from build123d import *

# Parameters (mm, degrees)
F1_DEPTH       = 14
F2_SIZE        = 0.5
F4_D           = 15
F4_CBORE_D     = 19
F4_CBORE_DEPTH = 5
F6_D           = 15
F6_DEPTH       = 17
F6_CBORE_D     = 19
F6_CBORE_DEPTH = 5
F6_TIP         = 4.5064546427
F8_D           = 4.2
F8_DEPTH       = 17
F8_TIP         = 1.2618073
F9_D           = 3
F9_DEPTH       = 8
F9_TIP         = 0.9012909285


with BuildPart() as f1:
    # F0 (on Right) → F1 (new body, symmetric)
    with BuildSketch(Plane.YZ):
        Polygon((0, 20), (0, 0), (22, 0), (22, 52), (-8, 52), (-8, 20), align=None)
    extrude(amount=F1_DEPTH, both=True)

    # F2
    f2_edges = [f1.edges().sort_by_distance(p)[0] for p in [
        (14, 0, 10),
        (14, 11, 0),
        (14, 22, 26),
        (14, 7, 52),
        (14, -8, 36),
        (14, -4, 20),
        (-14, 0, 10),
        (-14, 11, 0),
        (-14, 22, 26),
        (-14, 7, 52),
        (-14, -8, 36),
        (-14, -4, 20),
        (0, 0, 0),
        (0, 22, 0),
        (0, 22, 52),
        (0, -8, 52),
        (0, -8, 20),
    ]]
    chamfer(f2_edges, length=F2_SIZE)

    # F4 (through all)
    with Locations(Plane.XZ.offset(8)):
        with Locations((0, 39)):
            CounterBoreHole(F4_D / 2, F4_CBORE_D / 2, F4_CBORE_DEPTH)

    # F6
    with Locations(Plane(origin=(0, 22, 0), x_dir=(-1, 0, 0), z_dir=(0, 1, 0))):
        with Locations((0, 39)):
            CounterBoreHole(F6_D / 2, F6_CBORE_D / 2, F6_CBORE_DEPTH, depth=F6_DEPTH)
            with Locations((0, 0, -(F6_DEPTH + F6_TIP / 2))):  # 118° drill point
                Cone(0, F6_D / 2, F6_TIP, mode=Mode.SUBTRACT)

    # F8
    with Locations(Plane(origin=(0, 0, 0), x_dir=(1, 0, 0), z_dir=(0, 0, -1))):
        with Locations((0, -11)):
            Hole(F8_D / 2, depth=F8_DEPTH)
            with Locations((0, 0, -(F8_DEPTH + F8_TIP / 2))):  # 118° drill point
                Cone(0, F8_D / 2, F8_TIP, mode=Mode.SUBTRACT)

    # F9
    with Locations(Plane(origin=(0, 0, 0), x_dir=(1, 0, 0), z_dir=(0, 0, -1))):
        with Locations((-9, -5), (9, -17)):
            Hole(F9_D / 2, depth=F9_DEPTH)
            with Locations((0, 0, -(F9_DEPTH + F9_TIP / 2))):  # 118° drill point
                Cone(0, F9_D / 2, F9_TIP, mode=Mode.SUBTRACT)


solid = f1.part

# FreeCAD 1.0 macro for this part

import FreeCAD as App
import Part
import Sketcher


def edges_at(feature, points):
    """Names of the edges that pass closest to the given points."""
    edges = feature.Shape.Edges
    near = lambda p: min(range(len(edges)), key=lambda i: edges[i].distToShape(Part.Vertex(*p))[0])
    return sorted({f"Edge{near(p) + 1}" for p in points})


def add_polygon(sketch, points):
    """Adds a closed chain of lines whose ends are joined by coincident constraints."""
    first, n = sketch.GeometryCount, len(points)
    for a, b in zip(points, points[1:] + points[:1]):
        sketch.addGeometry(Part.LineSegment(App.Vector(*a, 0), App.Vector(*b, 0)), False)
    for i in range(n):
        sketch.addConstraint(Sketcher.Constraint("Coincident", first + i, 2, first + (i + 1) % n, 1))

doc = App.newDocument("Part")
body = doc.addObject("PartDesign::Body", "Body")

# Sketch on YZ plane
sketch1 = body.newObject("Sketcher::SketchObject", "Sketch")
sketch1.AttachmentSupport = (doc.getObject("YZ_Plane"), [""])
sketch1.MapMode = "FlatFace"
add_polygon(sketch1, [(0, 20), (0, 0), (22, 0), (22, 52), (-8, 52), (-8, 20)])  # lines 0-5
sketch1.addConstraint([
    Sketcher.Constraint("Vertical", 0),
    Sketcher.Constraint("Horizontal", 1),
    Sketcher.Constraint("Vertical", 2),
    Sketcher.Constraint("Horizontal", 3),
    Sketcher.Constraint("Vertical", 4),
    Sketcher.Constraint("Horizontal", 5),
    Sketcher.Constraint("Coincident", 0, 2, -1, 1),
    Sketcher.Constraint("DistanceX", 1, 1, 1, 2, 22.0),
    Sketcher.Constraint("DistanceX", 3, 2, 3, 1, 30.0),
    Sketcher.Constraint("DistanceY", 0, 2, 0, 1, 20.0),
    Sketcher.Constraint("DistanceY", 2, 1, 2, 2, 52.0),
])
pad1 = body.newObject("PartDesign::Pad", "Pad")
pad1.Profile = sketch1
pad1.Length = 28
pad1.Midplane = True
doc.recompute()

chamfer = body.newObject("PartDesign::Chamfer", "Chamfer")
chamfer.Base = (pad1, edges_at(pad1, [
    (14, 0, 10),
    (14, 11, 0),
    (14, 22, 26),
    (14, 7, 52),
    (14, -8, 36),
    (14, -4, 20),
    (-14, 0, 10),
    (-14, 11, 0),
    (-14, 22, 26),
    (-14, 7, 52),
    (-14, -8, 36),
    (-14, -4, 20),
    (0, 0, 0),
    (0, 22, 0),
    (0, 22, 52),
    (0, -8, 52),
    (0, -8, 20),
]))
chamfer.Size = 0.5

# Sketch on XZ plane
sketch2 = body.newObject("Sketcher::SketchObject", "Sketch001")
sketch2.AttachmentSupport = (doc.getObject("XZ_Plane"), [""])
sketch2.MapMode = "FlatFace"
sketch2.AttachmentOffset = App.Placement(App.Vector(0, 0, 8), App.Rotation())
sketch2.addGeometry(Part.Circle(App.Vector(0, 39, 0), App.Vector(0, 0, 1), 7.5), False)
sketch2.addConstraint([
    Sketcher.Constraint("PointOnObject", 0, 3, -2),
    Sketcher.Constraint("Diameter", 0, 15.0),
    Sketcher.Constraint("DistanceY", -1, 1, 0, 3, 39.0),
])
doc.recompute()
hole = body.newObject("PartDesign::Hole", "Hole")
hole.Profile = sketch2
hole.ThreadType = "None"
hole.Diameter = 15
hole.DepthType = "ThroughAll"
hole.HoleCutType = "Counterbore"
hole.HoleCutDiameter = 19
hole.HoleCutDepth = 5

# Sketch on XZ plane
sketch3 = body.newObject("Sketcher::SketchObject", "Sketch002")
sketch3.AttachmentSupport = (doc.getObject("XZ_Plane"), [""])
sketch3.MapMode = "FlatFace"
sketch3.AttachmentOffset = App.Placement(App.Vector(0, 0, -22), App.Rotation())
sketch3.addGeometry(Part.Circle(App.Vector(0, 39, 0), App.Vector(0, 0, 1), 7.5), False)
sketch3.addConstraint([
    Sketcher.Constraint("PointOnObject", 0, 3, -2),
    Sketcher.Constraint("Diameter", 0, 15.0),
    Sketcher.Constraint("DistanceY", -1, 1, 0, 3, 39.0),
])
doc.recompute()
hole2 = body.newObject("PartDesign::Hole", "Hole001")
hole2.Profile = sketch3
hole2.ThreadType = "None"
hole2.Diameter = 15
hole2.DepthType = "Dimension"
hole2.Depth = 17
hole2.DrillPoint = "Angled"
hole2.DrillPointAngle = 118
hole2.HoleCutType = "Counterbore"
hole2.HoleCutDiameter = 19
hole2.HoleCutDepth = 5
hole2.Reversed = True

# Sketch on XY plane
sketch4 = body.newObject("Sketcher::SketchObject", "Sketch003")
sketch4.AttachmentSupport = (doc.getObject("XY_Plane"), [""])
sketch4.MapMode = "FlatFace"
sketch4.addGeometry(Part.Circle(App.Vector(0, 11, 0), App.Vector(0, 0, 1), 2.1), False)
sketch4.addConstraint([
    Sketcher.Constraint("PointOnObject", 0, 3, -2),
    Sketcher.Constraint("Diameter", 0, 4.2),
    Sketcher.Constraint("DistanceY", -1, 1, 0, 3, 11.0),
])
doc.recompute()
hole3 = body.newObject("PartDesign::Hole", "Hole002")
hole3.Profile = sketch4
hole3.ThreadType = "None"
hole3.Diameter = 4.2
hole3.DepthType = "Dimension"
hole3.Depth = 17
hole3.DrillPoint = "Angled"
hole3.DrillPointAngle = 118
hole3.Reversed = True

# Sketch on XY plane
sketch5 = body.newObject("Sketcher::SketchObject", "Sketch004")
sketch5.AttachmentSupport = (doc.getObject("XY_Plane"), [""])
sketch5.MapMode = "FlatFace"
sketch5.addGeometry([
    Part.Circle(App.Vector(-9, 5, 0), App.Vector(0, 0, 1), 1.5),
    Part.Circle(App.Vector(9, 17, 0), App.Vector(0, 0, 1), 1.5),
], False)
sketch5.addConstraint([
    Sketcher.Constraint("Equal", 0, 1),
    Sketcher.Constraint("Diameter", 0, 3.0),
    Sketcher.Constraint("DistanceX", 0, 3, -1, 1, 9.0),
    Sketcher.Constraint("DistanceY", -1, 1, 0, 3, 5.0),
    Sketcher.Constraint("DistanceX", -1, 1, 1, 3, 9.0),
    Sketcher.Constraint("DistanceY", -1, 1, 1, 3, 17.0),
])
doc.recompute()
hole4 = body.newObject("PartDesign::Hole", "Hole003")
hole4.Profile = sketch5
hole4.ThreadType = "None"
hole4.Diameter = 3
hole4.DepthType = "Dimension"
hole4.Depth = 8
hole4.DrillPoint = "Angled"
hole4.DrillPointAngle = 118
hole4.Reversed = True

doc.recompute()
